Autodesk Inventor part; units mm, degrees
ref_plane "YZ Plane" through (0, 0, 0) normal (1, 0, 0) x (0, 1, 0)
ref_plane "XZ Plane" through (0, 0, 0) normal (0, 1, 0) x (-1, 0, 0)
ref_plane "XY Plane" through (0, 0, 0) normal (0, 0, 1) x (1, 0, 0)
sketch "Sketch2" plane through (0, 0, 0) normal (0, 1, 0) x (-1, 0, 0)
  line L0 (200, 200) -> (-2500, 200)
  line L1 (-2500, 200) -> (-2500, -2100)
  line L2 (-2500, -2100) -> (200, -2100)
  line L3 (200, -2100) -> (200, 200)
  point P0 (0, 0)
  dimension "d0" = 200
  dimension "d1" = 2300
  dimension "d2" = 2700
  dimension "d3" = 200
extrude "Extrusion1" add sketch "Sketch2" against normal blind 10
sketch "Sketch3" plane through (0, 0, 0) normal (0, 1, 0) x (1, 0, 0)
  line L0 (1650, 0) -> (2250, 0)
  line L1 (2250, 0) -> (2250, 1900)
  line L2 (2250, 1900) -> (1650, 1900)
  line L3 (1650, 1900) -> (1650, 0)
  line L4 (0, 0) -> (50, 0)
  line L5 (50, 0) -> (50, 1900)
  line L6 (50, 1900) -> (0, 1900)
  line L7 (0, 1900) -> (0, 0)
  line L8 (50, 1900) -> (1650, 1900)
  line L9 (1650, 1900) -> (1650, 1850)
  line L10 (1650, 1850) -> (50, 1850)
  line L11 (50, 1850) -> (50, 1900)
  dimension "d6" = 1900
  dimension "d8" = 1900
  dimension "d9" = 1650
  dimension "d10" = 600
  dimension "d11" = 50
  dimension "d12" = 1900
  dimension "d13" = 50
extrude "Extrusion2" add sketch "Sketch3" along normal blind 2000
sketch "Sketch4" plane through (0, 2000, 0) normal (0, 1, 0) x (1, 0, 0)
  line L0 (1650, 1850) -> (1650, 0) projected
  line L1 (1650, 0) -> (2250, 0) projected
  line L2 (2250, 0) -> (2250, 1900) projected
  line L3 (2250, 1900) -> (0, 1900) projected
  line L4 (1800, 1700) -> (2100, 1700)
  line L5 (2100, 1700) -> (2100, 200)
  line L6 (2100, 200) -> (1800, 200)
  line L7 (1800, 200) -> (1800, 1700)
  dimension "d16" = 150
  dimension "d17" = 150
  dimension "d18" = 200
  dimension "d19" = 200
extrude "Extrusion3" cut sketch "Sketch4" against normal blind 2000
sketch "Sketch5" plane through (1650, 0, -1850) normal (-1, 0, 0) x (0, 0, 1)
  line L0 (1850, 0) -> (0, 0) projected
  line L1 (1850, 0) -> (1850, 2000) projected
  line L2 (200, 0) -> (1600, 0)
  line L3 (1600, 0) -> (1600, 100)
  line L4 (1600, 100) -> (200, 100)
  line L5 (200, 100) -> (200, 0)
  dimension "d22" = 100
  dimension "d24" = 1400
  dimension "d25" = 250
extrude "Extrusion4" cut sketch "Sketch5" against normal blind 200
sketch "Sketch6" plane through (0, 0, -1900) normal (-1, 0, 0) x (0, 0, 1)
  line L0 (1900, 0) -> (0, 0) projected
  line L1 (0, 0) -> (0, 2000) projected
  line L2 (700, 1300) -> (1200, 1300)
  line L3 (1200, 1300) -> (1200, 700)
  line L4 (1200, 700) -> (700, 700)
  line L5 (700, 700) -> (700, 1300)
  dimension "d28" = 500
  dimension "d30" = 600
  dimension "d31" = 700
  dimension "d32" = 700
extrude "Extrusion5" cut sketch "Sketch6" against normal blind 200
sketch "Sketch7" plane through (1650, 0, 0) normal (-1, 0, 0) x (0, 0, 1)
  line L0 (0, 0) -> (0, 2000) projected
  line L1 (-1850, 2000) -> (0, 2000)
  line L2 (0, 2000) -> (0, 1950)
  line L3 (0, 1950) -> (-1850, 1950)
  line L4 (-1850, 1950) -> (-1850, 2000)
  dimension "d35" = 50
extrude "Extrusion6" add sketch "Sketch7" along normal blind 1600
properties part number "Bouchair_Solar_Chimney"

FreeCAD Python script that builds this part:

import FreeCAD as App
import Part
import Sketcher

V = App.Vector

doc = App.newDocument("Part")
body = doc.addObject("PartDesign::Body", "Body")

sketch1 = doc.addObject("Sketcher::SketchObject", "Sketch")
body.addObject(sketch1)
sketch1.AttachmentSupport = (doc.XZ_Plane, [""])
sketch1.MapMode = "FlatFace"
sketch1.addGeometry(Part.LineSegment(V(-200, -2100, 0), V(-200, 200, 0)), False)
sketch1.addGeometry(Part.LineSegment(V(-200, 200, 0), V(2500, 200, 0)), False)
sketch1.addGeometry(Part.LineSegment(V(2500, 200, 0), V(2500, -2100, 0)), False)
sketch1.addGeometry(Part.LineSegment(V(2500, -2100, 0), V(-200, -2100, 0)), False)
sketch1.addConstraint(Sketcher.Constraint("Coincident", 0, 2, 1, 1))
sketch1.addConstraint(Sketcher.Constraint("Coincident", 1, 2, 2, 1))
sketch1.addConstraint(Sketcher.Constraint("Coincident", 2, 2, 3, 1))
sketch1.addConstraint(Sketcher.Constraint("Coincident", 3, 2, 0, 1))
sketch1.addConstraint(Sketcher.Constraint("Vertical", 0))
sketch1.addConstraint(Sketcher.Constraint("Horizontal", 1))
sketch1.addConstraint(Sketcher.Constraint("Vertical", 2))
sketch1.addConstraint(Sketcher.Constraint("Horizontal", 3))
sketch1.addConstraint(Sketcher.Constraint("DistanceX", 1, 1, 1, 2, 2700.0))
sketch1.addConstraint(Sketcher.Constraint("DistanceY", 0, 1, 0, 2, 2300.0))
sketch1.addConstraint(Sketcher.Constraint("DistanceX", 0, 2, -1, 1, 200.0))
sketch1.addConstraint(Sketcher.Constraint("DistanceY", -1, 1, 0, 2, 200.0))
pad1 = doc.addObject("PartDesign::Pad", "Pad")
body.addObject(pad1)
pad1.Profile = sketch1
pad1.Length = 10

sketch2 = doc.addObject("Sketcher::SketchObject", "Sketch001")
body.addObject(sketch2)
sketch2.AttachmentSupport = (doc.XZ_Plane, [""])
sketch2.MapMode = "FlatFace"
sketch2.addGeometry(Part.LineSegment(V(1650, -1850, 0), V(1650, 0, 0)), False)
sketch2.addGeometry(Part.LineSegment(V(1650, 0, 0), V(2250, 0, 0)), False)
sketch2.addGeometry(Part.LineSegment(V(2250, 0, 0), V(2250, -1900, 0)), False)
sketch2.addGeometry(Part.LineSegment(V(2250, -1900, 0), V(0, -1900, 0)), False)
sketch2.addGeometry(Part.LineSegment(V(0, -1900, 0), V(0, 0, 0)), False)
sketch2.addGeometry(Part.LineSegment(V(0, 0, 0), V(50, 0, 0)), False)
sketch2.addGeometry(Part.LineSegment(V(50, 0, 0), V(50, -1850, 0)), False)
sketch2.addGeometry(Part.LineSegment(V(50, -1850, 0), V(1650, -1850, 0)), False)
sketch2.addConstraint(Sketcher.Constraint("Coincident", 0, 2, 1, 1))
sketch2.addConstraint(Sketcher.Constraint("Coincident", 1, 2, 2, 1))
sketch2.addConstraint(Sketcher.Constraint("Coincident", 2, 2, 3, 1))
sketch2.addConstraint(Sketcher.Constraint("Coincident", 3, 2, 4, 1))
sketch2.addConstraint(Sketcher.Constraint("Coincident", 4, 2, 5, 1))
sketch2.addConstraint(Sketcher.Constraint("Coincident", 5, 2, 6, 1))
sketch2.addConstraint(Sketcher.Constraint("Coincident", 6, 2, 7, 1))
sketch2.addConstraint(Sketcher.Constraint("Coincident", 7, 2, 0, 1))
sketch2.addConstraint(Sketcher.Constraint("Vertical", 0))
sketch2.addConstraint(Sketcher.Constraint("Horizontal", 1))
sketch2.addConstraint(Sketcher.Constraint("Vertical", 2))
sketch2.addConstraint(Sketcher.Constraint("Horizontal", 3))
sketch2.addConstraint(Sketcher.Constraint("Vertical", 4))
sketch2.addConstraint(Sketcher.Constraint("Horizontal", 5))
sketch2.addConstraint(Sketcher.Constraint("Vertical", 6))
sketch2.addConstraint(Sketcher.Constraint("Horizontal", 7))
sketch2.addConstraint(Sketcher.Constraint("Coincident", 4, 2, -1, 1))
sketch2.addConstraint(Sketcher.Constraint("PointOnObject", 0, 2, -1))
sketch2.addConstraint(Sketcher.Constraint("DistanceX", 1, 1, 1, 2, 600.0))
sketch2.addConstraint(Sketcher.Constraint("DistanceX", 5, 1, 5, 2, 50.0))
sketch2.addConstraint(Sketcher.Constraint("DistanceY", 2, 2, 2, 1, 1900.0))
sketch2.addConstraint(Sketcher.Constraint("DistanceX", -1, 1, 0, 2, 1650.0))
sketch2.addConstraint(Sketcher.Constraint("DistanceY", 3, 2, 6, 2, 50.0))
pad2 = doc.addObject("PartDesign::Pad", "Pad001")
body.addObject(pad2)
pad2.Profile = sketch2
pad2.Length = 2000
pad2.Reversed = True

sketch3 = doc.addObject("Sketcher::SketchObject", "Sketch002")
body.addObject(sketch3)
sketch3.AttachmentSupport = (doc.XZ_Plane, [""])
sketch3.MapMode = "FlatFace"
sketch3.AttachmentOffset = App.Placement(V(0, 0, -2000), App.Rotation())
sketch3.addGeometry(Part.LineSegment(V(2100, -1700, 0), V(1800, -1700, 0)), False)
sketch3.addGeometry(Part.LineSegment(V(1800, -1700, 0), V(1800, -200, 0)), False)
sketch3.addGeometry(Part.LineSegment(V(1800, -200, 0), V(2100, -200, 0)), False)
sketch3.addGeometry(Part.LineSegment(V(2100, -200, 0), V(2100, -1700, 0)), False)
sketch3.addConstraint(Sketcher.Constraint("Coincident", 0, 2, 1, 1))
sketch3.addConstraint(Sketcher.Constraint("Coincident", 1, 2, 2, 1))
sketch3.addConstraint(Sketcher.Constraint("Coincident", 2, 2, 3, 1))
sketch3.addConstraint(Sketcher.Constraint("Coincident", 3, 2, 0, 1))
sketch3.addConstraint(Sketcher.Constraint("Horizontal", 0))
sketch3.addConstraint(Sketcher.Constraint("Vertical", 1))
sketch3.addConstraint(Sketcher.Constraint("Horizontal", 2))
sketch3.addConstraint(Sketcher.Constraint("Vertical", 3))
sketch3.addConstraint(Sketcher.Constraint("DistanceY", 1, 2, -1, 1, 200.0))
sketch3.addConstraint(Sketcher.Constraint("DistanceX", 0, 2, 0, 1, 300.0))
sketch3.addConstraint(Sketcher.Constraint("DistanceY", 1, 1, 1, 2, 1500.0))
sketch3.addConstraint(Sketcher.Constraint("DistanceX", -1, 1, 0, 2, 1800.0))
pocket1 = doc.addObject("PartDesign::Pocket", "Pocket")
body.addObject(pocket1)
pocket1.Profile = sketch3
pocket1.Length = 2000
pocket1.Reversed = True

sketch4 = doc.addObject("Sketcher::SketchObject", "Sketch003")
body.addObject(sketch4)
sketch4.AttachmentSupport = (doc.YZ_Plane, [""])
sketch4.MapMode = "FlatFace"
sketch4.AttachmentOffset = App.Placement(V(0, 0, 1650), App.Rotation())
sketch4.addGeometry(Part.LineSegment(V(0, -1650, 0), V(0, -250, 0)), False)
sketch4.addGeometry(Part.LineSegment(V(0, -250, 0), V(100, -250, 0)), False)
sketch4.addGeometry(Part.LineSegment(V(100, -250, 0), V(100, -1650, 0)), False)
sketch4.addGeometry(Part.LineSegment(V(100, -1650, 0), V(0, -1650, 0)), False)
sketch4.addConstraint(Sketcher.Constraint("Coincident", 0, 2, 1, 1))
sketch4.addConstraint(Sketcher.Constraint("Coincident", 1, 2, 2, 1))
sketch4.addConstraint(Sketcher.Constraint("Coincident", 2, 2, 3, 1))
sketch4.addConstraint(Sketcher.Constraint("Coincident", 3, 2, 0, 1))
sketch4.addConstraint(Sketcher.Constraint("Vertical", 0))
sketch4.addConstraint(Sketcher.Constraint("Horizontal", 1))
sketch4.addConstraint(Sketcher.Constraint("Vertical", 2))
sketch4.addConstraint(Sketcher.Constraint("Horizontal", 3))
sketch4.addConstraint(Sketcher.Constraint("PointOnObject", 0, 2, -2))
sketch4.addConstraint(Sketcher.Constraint("DistanceX", 1, 1, 1, 2, 100.0))
sketch4.addConstraint(Sketcher.Constraint("DistanceY", 0, 1, 0, 2, 1400.0))
sketch4.addConstraint(Sketcher.Constraint("DistanceY", 0, 2, -1, 1, 250.0))
pocket2 = doc.addObject("PartDesign::Pocket", "Pocket001")
body.addObject(pocket2)
pocket2.Profile = sketch4
pocket2.Length = 200
pocket2.Reversed = True

sketch5 = doc.addObject("Sketcher::SketchObject", "Sketch004")
body.addObject(sketch5)
sketch5.AttachmentSupport = (doc.YZ_Plane, [""])
sketch5.MapMode = "FlatFace"
sketch5.addGeometry(Part.LineSegment(V(1300, -700, 0), V(1300, -1200, 0)), False)
sketch5.addGeometry(Part.LineSegment(V(1300, -1200, 0), V(700, -1200, 0)), False)
sketch5.addGeometry(Part.LineSegment(V(700, -1200, 0), V(700, -700, 0)), False)
sketch5.addGeometry(Part.LineSegment(V(700, -700, 0), V(1300, -700, 0)), False)
sketch5.addConstraint(Sketcher.Constraint("Coincident", 0, 2, 1, 1))
sketch5.addConstraint(Sketcher.Constraint("Coincident", 1, 2, 2, 1))
sketch5.addConstraint(Sketcher.Constraint("Coincident", 2, 2, 3, 1))
sketch5.addConstraint(Sketcher.Constraint("Coincident", 3, 2, 0, 1))
sketch5.addConstraint(Sketcher.Constraint("Vertical", 0))
sketch5.addConstraint(Sketcher.Constraint("Horizontal", 1))
sketch5.addConstraint(Sketcher.Constraint("Vertical", 2))
sketch5.addConstraint(Sketcher.Constraint("Horizontal", 3))
sketch5.addConstraint(Sketcher.Constraint("DistanceX", 1, 2, 1, 1, 600.0))
sketch5.addConstraint(Sketcher.Constraint("DistanceY", 0, 2, 0, 1, 500.0))
sketch5.addConstraint(Sketcher.Constraint("DistanceX", -1, 1, 1, 2, 700.0))
sketch5.addConstraint(Sketcher.Constraint("DistanceY", 2, 2, -1, 1, 700.0))
pocket3 = doc.addObject("PartDesign::Pocket", "Pocket002")
body.addObject(pocket3)
pocket3.Profile = sketch5
pocket3.Length = 200
pocket3.Reversed = True

sketch6 = doc.addObject("Sketcher::SketchObject", "Sketch005")
body.addObject(sketch6)
sketch6.AttachmentSupport = (doc.YZ_Plane, [""])
sketch6.MapMode = "FlatFace"
sketch6.AttachmentOffset = App.Placement(V(0, 0, 1650), App.Rotation())
sketch6.addGeometry(Part.LineSegment(V(1950, -1850, 0), V(1950, 0, 0)), False)
sketch6.addGeometry(Part.LineSegment(V(1950, 0, 0), V(2000, 0, 0)), False)
sketch6.addGeometry(Part.LineSegment(V(2000, 0, 0), V(2000, -1850, 0)), False)
sketch6.addGeometry(Part.LineSegment(V(2000, -1850, 0), V(1950, -1850, 0)), False)
sketch6.addConstraint(Sketcher.Constraint("Coincident", 0, 2, 1, 1))
sketch6.addConstraint(Sketcher.Constraint("Coincident", 1, 2, 2, 1))
sketch6.addConstraint(Sketcher.Constraint("Coincident", 2, 2, 3, 1))
sketch6.addConstraint(Sketcher.Constraint("Coincident", 3, 2, 0, 1))
sketch6.addConstraint(Sketcher.Constraint("Vertical", 0))
sketch6.addConstraint(Sketcher.Constraint("Horizontal", 1))
sketch6.addConstraint(Sketcher.Constraint("Vertical", 2))
sketch6.addConstraint(Sketcher.Constraint("Horizontal", 3))
sketch6.addConstraint(Sketcher.Constraint("PointOnObject", 0, 2, -1))
sketch6.addConstraint(Sketcher.Constraint("DistanceX", 1, 1, 1, 2, 50.0))
sketch6.addConstraint(Sketcher.Constraint("DistanceY", 0, 1, 0, 2, 1850.0))
sketch6.addConstraint(Sketcher.Constraint("DistanceX", -1, 1, 0, 2, 1950.0))
pad3 = doc.addObject("PartDesign::Pad", "Pad002")
body.addObject(pad3)
pad3.Profile = sketch6
pad3.Length = 1600
pad3.Reversed = True

doc.recompute()
